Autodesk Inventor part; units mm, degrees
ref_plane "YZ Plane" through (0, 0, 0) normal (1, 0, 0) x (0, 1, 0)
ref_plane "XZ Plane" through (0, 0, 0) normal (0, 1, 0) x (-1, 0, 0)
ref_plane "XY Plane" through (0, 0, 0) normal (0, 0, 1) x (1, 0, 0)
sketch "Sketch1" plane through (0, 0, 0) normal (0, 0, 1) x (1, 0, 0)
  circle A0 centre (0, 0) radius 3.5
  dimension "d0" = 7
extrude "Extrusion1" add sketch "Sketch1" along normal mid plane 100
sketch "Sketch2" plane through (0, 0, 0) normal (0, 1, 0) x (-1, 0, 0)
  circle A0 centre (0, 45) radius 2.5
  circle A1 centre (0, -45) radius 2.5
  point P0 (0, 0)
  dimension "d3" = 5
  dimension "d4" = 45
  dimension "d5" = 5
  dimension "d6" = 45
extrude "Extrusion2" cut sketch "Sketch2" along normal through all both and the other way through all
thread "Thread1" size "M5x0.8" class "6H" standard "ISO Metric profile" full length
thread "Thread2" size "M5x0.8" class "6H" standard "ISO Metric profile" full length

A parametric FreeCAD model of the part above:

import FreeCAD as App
import Part
import Sketcher

V = App.Vector

doc = App.newDocument("Part")
params = doc.addObject("Spreadsheet::Sheet", "Params")
for row, (alias, value) in enumerate([
    ("sketch1_diameter", "7 mm"),
    ("pad1_length", "100 mm"),
    ("sketch2_diameter", "5 mm"),
], start=1):
    params.set(f"A{row}", alias)
    params.set(f"B{row}", "=" + value)
    params.setAlias(f"B{row}", alias)

body = doc.addObject("PartDesign::Body", "Body")

sketch1 = doc.addObject("Sketcher::SketchObject", "Sketch")
body.addObject(sketch1)
sketch1.AttachmentSupport = (doc.XY_Plane, [""])
sketch1.MapMode = "FlatFace"
sketch1.addGeometry(Part.Circle(V(0, 0, 0), V(0, 0, 1), 3.5), False)
sketch1.addConstraint([
    Sketcher.Constraint("Coincident", 0, 3, -1, 1),
    Sketcher.Constraint("Diameter", 0, 7.0),
])
sketch1.setExpression("Constraints[1]", "Params.sketch1_diameter")
pad1 = doc.addObject("PartDesign::Pad", "Pad")
body.addObject(pad1)
pad1.Profile = sketch1
pad1.setExpression("Length", "Params.pad1_length")
pad1.Midplane = True

sketch2 = doc.addObject("Sketcher::SketchObject", "Sketch001")
body.addObject(sketch2)
sketch2.AttachmentSupport = (doc.XZ_Plane, [""])
sketch2.MapMode = "FlatFace"
sketch2.addGeometry([
    Part.Circle(V(0, 45, 0), V(0, 0, 1), 2.5),
    Part.Circle(V(0, -45, 0), V(0, 0, 1), 2.5),
], False)
sketch2.addConstraint([
    Sketcher.Constraint("Equal", 0, 1),
    Sketcher.Constraint("Symmetric", 0, 3, 1, 3, -1, 1),
    Sketcher.Constraint("PointOnObject", 0, 3, -2),
    Sketcher.Constraint("Diameter", 0, 5.0),
    Sketcher.Constraint("DistanceY", -1, 1, 0, 3, 45.0),
])
sketch2.setExpression("Constraints[3]", "Params.sketch2_diameter")
pocket1 = doc.addObject("PartDesign::Pocket", "Pocket")
body.addObject(pocket1)
pocket1.Profile = sketch2
pocket1.Type = "ThroughAll"
pocket1.Midplane = True

doc.recompute()
